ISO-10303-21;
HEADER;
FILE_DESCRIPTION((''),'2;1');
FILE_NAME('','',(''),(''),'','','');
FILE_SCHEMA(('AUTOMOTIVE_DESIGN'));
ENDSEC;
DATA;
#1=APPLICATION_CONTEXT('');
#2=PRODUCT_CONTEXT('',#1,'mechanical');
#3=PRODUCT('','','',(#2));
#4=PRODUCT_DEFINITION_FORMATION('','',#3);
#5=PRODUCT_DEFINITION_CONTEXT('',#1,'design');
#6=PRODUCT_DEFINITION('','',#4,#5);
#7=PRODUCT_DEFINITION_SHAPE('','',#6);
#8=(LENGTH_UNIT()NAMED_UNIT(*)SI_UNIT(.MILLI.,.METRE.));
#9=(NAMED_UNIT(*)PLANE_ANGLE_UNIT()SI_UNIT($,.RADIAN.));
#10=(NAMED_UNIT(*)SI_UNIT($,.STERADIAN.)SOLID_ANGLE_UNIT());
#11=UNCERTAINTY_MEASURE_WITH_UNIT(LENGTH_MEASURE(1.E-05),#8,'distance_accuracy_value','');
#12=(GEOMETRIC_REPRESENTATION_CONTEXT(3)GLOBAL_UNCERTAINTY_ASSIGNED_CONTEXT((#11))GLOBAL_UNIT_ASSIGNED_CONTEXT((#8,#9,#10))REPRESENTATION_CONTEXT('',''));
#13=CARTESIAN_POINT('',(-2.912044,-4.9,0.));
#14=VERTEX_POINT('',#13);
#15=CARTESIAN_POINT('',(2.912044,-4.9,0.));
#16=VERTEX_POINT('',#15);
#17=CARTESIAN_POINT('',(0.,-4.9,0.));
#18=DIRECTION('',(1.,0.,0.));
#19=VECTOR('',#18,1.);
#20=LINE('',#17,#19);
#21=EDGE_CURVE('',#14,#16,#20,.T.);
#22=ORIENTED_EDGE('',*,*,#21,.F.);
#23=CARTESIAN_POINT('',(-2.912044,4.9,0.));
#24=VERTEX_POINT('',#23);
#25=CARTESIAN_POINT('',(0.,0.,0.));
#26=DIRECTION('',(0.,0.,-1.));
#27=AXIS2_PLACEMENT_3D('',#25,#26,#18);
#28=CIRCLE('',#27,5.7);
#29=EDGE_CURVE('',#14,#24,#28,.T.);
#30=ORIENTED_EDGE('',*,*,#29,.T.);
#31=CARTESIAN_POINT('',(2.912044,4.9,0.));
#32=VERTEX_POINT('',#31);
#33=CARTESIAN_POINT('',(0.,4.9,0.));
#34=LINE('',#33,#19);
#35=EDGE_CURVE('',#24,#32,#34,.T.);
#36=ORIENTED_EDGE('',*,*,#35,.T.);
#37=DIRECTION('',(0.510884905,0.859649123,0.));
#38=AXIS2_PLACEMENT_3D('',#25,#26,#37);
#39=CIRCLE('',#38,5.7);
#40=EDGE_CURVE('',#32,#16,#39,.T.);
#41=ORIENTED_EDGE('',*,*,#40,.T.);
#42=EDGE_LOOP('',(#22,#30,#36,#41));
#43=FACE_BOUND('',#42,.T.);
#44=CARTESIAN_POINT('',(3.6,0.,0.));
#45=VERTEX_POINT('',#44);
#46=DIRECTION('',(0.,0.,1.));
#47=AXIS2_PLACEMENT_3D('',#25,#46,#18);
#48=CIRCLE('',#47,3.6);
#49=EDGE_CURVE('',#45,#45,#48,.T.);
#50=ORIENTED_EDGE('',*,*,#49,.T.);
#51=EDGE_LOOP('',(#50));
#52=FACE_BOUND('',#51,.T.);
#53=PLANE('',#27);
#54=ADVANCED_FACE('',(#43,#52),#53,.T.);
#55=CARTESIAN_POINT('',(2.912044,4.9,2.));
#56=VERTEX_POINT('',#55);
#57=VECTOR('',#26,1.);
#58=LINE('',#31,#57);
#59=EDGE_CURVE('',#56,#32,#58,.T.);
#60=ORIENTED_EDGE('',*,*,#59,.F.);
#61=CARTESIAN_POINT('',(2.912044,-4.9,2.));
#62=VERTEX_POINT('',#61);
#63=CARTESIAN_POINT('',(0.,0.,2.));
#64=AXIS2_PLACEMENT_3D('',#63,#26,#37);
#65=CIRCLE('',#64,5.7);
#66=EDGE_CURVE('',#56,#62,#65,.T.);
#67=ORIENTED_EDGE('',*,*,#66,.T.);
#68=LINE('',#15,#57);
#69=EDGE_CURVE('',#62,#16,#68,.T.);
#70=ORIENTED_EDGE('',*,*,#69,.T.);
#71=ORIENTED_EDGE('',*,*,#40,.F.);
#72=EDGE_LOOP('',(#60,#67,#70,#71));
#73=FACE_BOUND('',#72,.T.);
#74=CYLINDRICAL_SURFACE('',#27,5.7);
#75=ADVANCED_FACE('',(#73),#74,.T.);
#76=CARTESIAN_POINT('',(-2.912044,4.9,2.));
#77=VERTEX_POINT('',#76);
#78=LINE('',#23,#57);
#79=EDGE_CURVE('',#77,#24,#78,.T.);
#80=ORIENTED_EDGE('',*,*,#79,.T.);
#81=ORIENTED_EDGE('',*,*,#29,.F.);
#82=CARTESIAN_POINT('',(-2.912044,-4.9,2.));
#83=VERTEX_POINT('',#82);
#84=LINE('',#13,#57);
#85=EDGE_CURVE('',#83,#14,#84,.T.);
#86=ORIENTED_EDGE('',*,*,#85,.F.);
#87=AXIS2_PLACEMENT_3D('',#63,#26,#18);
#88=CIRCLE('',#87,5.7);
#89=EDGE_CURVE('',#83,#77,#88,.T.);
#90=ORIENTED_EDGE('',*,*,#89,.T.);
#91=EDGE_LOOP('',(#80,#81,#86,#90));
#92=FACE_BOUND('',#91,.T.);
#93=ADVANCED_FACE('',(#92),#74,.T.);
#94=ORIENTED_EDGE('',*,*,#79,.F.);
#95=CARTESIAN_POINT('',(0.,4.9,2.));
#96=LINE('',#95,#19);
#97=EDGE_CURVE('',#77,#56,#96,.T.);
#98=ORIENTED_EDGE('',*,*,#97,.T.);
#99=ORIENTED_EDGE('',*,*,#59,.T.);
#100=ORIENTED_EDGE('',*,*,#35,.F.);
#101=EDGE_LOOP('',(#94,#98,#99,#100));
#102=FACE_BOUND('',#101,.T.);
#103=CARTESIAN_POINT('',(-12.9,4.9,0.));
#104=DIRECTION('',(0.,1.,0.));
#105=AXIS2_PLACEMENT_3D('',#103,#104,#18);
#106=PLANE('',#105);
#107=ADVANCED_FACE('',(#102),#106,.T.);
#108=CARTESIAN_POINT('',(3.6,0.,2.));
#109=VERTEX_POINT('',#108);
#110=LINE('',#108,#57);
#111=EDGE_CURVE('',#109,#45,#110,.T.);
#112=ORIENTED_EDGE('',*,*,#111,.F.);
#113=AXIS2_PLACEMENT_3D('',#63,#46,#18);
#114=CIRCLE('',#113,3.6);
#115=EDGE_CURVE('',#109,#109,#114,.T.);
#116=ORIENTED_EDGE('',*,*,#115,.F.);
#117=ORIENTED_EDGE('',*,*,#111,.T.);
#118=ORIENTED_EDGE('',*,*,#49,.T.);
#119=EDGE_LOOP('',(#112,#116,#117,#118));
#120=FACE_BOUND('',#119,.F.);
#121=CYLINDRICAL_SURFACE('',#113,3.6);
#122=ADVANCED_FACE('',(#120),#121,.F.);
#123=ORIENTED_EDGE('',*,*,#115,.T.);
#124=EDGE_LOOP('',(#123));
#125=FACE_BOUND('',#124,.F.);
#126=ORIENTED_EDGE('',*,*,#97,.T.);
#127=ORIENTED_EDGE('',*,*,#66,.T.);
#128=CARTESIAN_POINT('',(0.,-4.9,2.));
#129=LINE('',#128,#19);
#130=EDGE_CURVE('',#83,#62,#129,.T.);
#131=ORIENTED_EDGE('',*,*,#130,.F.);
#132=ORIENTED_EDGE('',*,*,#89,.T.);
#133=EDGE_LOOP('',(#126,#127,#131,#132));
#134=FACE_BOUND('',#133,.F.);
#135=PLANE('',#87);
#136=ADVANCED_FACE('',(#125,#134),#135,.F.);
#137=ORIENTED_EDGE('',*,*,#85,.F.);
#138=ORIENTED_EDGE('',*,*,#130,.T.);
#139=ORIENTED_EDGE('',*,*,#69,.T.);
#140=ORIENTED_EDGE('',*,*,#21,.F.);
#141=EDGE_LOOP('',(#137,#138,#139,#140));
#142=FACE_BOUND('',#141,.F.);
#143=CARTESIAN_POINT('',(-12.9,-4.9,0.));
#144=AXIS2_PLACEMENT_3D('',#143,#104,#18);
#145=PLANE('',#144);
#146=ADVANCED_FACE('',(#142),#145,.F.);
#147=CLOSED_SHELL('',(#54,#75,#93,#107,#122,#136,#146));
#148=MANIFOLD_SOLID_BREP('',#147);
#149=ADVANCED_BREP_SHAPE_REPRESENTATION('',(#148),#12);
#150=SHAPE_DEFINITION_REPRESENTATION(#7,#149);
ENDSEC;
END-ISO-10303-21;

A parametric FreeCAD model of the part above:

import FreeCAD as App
import Part
import Sketcher


def add_polygon(sketch, points):
    """Adds a closed chain of lines whose ends are joined by coincident constraints."""
    first, n = sketch.GeometryCount, len(points)
    for a, b in zip(points, points[1:] + points[:1]):
        sketch.addGeometry(Part.LineSegment(App.Vector(*a, 0), App.Vector(*b, 0)), False)
    for i in range(n):
        sketch.addConstraint(Sketcher.Constraint("Coincident", first + i, 2, first + (i + 1) % n, 1))

doc = App.newDocument("Part")
body = doc.addObject("PartDesign::Body", "Body")

sketch1 = body.newObject("Sketcher::SketchObject", "Sketch")
sketch1.AttachmentSupport = (doc.getObject("XY_Plane"), [""])
sketch1.MapMode = "FlatFace"
sketch1.AttachmentOffset = App.Placement(App.Vector(0, 0, 2), App.Rotation())
sketch1.addGeometry(Part.Circle(App.Vector(0, 0, 0), App.Vector(0, 0, 1), 3.6), False)
sketch1.addConstraint([
    Sketcher.Constraint("Coincident", 0, 3, -1, 1),
    Sketcher.Constraint("Diameter", 0, 7.2),
])
pad1 = body.newObject("PartDesign::Pad", "Pad")
pad1.Profile = sketch1
pad1.Length = 2
pad1.Reversed = True
body2 = doc.addObject("PartDesign::Body", "Body001")

sketch2 = body2.newObject("Sketcher::SketchObject", "Sketch001")
sketch2.AttachmentSupport = (doc.getObject("XY_Plane001"), [""])
sketch2.MapMode = "FlatFace"
sketch2.addGeometry(Part.Circle(App.Vector(26.064868, 8.047387, 0), App.Vector(0, 0, 1), 3.5), False)
sketch2.addConstraint([
    Sketcher.Constraint("Diameter", 0, 7.0),
    Sketcher.Constraint("DistanceX", -1, 1, 0, 3, 26.064868),
    Sketcher.Constraint("DistanceY", -1, 1, 0, 3, 8.047387),
])
pad2 = body2.newObject("PartDesign::Pad", "Pad001")
pad2.Profile = sketch2
pad2.Length = 2
body3 = doc.addObject("PartDesign::Body", "Body002")

sketch3 = body3.newObject("Sketcher::SketchObject", "Sketch002")
sketch3.AttachmentSupport = (doc.getObject("XY_Plane002"), [""])
sketch3.MapMode = "FlatFace"
sketch3.addGeometry(Part.Circle(App.Vector(26.064868, 8.047387, 0), App.Vector(0, 0, 1), 5.7), False)
sketch3.addConstraint([
    Sketcher.Constraint("Diameter", 0, 11.4),
    Sketcher.Constraint("DistanceX", -1, 1, 0, 3, 26.064868),
    Sketcher.Constraint("DistanceY", -1, 1, 0, 3, 8.047387),
])
pad3 = body3.newObject("PartDesign::Pad", "Pad002")
pad3.Profile = sketch3
pad3.Length = 2
doc.recompute()

boolean = body3.newObject("PartDesign::Boolean", "Boolean")
boolean.Type = "Cut"
boolean.addObjects([body2])
body4 = doc.addObject("PartDesign::Body", "Body003")
doc.recompute()

body3.Placement = App.Placement(App.Vector(-26.064868, -8.047387, 0), App.Rotation(App.Vector(0, 0, 1), 0))
boolean2 = body4.newObject("PartDesign::Boolean", "Boolean001")
boolean2.Type = "Fuse"
boolean2.addObjects([body3])
body5 = doc.addObject("PartDesign::Body", "Body004")

sketch4 = body5.newObject("Sketcher::SketchObject", "Sketch003")
sketch4.AttachmentSupport = (doc.getObject("XY_Plane004"), [""])
sketch4.MapMode = "FlatFace"
add_polygon(sketch4, [(-12.9, -4.9), (-12.9, 4.9), (12.9, 4.9), (12.9, -4.9)])
sketch4.addConstraint([
    Sketcher.Constraint("Vertical", 0),
    Sketcher.Constraint("Horizontal", 1),
    Sketcher.Constraint("Vertical", 2),
    Sketcher.Constraint("Horizontal", 3),
    Sketcher.Constraint("Symmetric", 0, 2, 2, 2, -1, 1),
    Sketcher.Constraint("DistanceX", 1, 1, 1, 2, 25.8),
    Sketcher.Constraint("DistanceY", 0, 1, 0, 2, 9.8),
])
pad4 = body5.newObject("PartDesign::Pad", "Pad003")
pad4.Profile = sketch4
pad4.Length = 2
doc.recompute()

boolean3 = body5.newObject("PartDesign::Boolean", "Boolean002")
boolean3.Type = "Common"
boolean3.addObjects([body4])
doc.recompute()

boolean4 = body5.newObject("PartDesign::Boolean", "Boolean003")
boolean4.Type = "Cut"
boolean4.addObjects([body])

doc.recompute()
